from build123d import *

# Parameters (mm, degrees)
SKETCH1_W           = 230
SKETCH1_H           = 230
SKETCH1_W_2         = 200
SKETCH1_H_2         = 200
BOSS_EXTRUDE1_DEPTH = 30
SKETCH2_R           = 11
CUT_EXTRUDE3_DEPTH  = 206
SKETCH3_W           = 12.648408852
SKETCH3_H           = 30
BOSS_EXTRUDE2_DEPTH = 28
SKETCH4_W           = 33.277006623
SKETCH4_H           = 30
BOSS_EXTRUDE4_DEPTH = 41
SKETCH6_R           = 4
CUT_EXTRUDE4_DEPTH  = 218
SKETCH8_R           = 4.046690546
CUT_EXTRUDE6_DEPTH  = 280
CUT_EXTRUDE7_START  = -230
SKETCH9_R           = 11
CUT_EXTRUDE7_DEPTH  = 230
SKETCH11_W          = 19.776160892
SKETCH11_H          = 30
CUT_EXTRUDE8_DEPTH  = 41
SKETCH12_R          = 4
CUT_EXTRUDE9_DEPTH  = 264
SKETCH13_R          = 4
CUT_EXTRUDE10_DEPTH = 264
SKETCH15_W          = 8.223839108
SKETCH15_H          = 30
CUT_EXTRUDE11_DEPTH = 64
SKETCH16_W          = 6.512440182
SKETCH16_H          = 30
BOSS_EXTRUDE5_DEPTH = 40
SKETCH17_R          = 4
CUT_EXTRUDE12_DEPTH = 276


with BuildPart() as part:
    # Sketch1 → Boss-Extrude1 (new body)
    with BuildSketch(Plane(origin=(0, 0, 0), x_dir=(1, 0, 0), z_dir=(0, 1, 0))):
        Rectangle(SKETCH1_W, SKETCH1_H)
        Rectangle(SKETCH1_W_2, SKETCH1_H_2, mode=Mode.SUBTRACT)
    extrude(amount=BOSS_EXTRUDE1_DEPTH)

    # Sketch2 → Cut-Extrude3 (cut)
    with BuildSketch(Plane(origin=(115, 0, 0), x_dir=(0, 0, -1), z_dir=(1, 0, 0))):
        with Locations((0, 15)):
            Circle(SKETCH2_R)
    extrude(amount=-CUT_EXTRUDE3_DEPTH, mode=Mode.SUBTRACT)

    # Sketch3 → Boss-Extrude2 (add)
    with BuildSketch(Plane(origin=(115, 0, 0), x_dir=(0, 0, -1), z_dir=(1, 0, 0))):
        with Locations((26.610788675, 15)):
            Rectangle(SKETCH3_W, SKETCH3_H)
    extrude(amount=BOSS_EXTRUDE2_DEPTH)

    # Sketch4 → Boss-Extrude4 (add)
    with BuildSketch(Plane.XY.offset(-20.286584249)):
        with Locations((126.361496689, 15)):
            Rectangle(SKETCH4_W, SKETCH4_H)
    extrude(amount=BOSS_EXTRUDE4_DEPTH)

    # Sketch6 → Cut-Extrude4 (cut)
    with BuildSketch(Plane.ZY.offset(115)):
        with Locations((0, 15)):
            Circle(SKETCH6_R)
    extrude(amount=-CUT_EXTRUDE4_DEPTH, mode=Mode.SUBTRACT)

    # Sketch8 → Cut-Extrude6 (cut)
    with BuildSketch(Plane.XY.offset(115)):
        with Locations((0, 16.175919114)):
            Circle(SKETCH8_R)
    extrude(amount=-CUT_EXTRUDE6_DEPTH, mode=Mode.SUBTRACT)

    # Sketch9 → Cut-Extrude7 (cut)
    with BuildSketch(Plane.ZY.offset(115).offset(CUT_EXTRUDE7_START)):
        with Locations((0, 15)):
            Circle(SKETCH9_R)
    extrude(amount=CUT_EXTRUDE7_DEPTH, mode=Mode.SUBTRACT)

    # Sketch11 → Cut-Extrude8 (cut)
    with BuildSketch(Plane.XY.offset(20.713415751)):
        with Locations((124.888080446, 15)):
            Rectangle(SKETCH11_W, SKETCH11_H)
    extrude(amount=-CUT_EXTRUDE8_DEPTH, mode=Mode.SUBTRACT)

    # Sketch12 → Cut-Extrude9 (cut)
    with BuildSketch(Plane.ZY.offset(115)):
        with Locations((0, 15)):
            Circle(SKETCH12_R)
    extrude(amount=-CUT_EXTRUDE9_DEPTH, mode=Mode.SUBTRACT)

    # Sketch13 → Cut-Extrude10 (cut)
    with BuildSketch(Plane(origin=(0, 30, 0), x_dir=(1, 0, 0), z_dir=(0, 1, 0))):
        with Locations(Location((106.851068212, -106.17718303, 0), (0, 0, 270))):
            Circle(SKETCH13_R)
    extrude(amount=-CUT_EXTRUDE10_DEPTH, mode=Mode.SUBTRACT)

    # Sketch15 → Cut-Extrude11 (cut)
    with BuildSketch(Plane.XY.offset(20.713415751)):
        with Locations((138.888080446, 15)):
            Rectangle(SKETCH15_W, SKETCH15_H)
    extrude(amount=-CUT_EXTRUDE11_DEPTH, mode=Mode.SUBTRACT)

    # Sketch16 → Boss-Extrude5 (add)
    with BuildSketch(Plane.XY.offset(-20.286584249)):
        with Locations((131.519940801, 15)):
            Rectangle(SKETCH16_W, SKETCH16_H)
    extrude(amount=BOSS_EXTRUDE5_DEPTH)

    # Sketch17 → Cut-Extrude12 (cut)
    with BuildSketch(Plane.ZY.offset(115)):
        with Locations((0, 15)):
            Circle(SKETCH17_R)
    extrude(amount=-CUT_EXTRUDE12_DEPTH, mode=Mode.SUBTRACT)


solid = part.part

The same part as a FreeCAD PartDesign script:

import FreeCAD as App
import Part
import Sketcher
Q = App.Units.Quantity


def add_polygon(sketch, points):
    """Adds a closed chain of lines whose ends are joined by coincident constraints."""
    first, n = sketch.GeometryCount, len(points)
    for a, b in zip(points, points[1:] + points[:1]):
        sketch.addGeometry(Part.LineSegment(App.Vector(*a, 0), App.Vector(*b, 0)), False)
    for i in range(n):
        sketch.addConstraint(Sketcher.Constraint("Coincident", first + i, 2, first + (i + 1) % n, 1))

doc = App.newDocument("Part")
params = doc.addObject("Spreadsheet::Sheet", "Params")
for row, (alias, value) in enumerate([
    ("sketch1_width", "230 mm"),
    ("sketch1_width2", "200 mm"),
    ("pad1_length", "30 mm"),
    ("sketch2_diameter", "22 mm"),
    ("pocket1_length", "206 mm"),
    ("sketch3_width", "30 mm"),
    ("pad2_length", "28 mm"),
    ("sketch4_height", "30 mm"),
    ("pad3_length", "41 mm"),
    ("sketch5_diameter", "8 mm"),
    ("pocket2_length", "218 mm"),
    ("pocket3_length", "280 mm"),
    ("sketch7_diameter", "22 mm"),
    ("pocket4_length", "230 mm"),
    ("sketch8_height", "30 mm"),
    ("pocket5_length", "41 mm"),
    ("sketch9_diameter", "8 mm"),
    ("pocket6_length", "264 mm"),
    ("sketch10_diameter", "8 mm"),
    ("pocket7_length", "264 mm"),
    ("sketch11_height", "30 mm"),
    ("pocket8_length", "64 mm"),
    ("sketch12_height", "30 mm"),
    ("pad4_length", "40 mm"),
    ("sketch13_diameter", "8 mm"),
    ("pocket9_length", "276 mm"),
], start=1):
    params.set(f"A{row}", alias)
    params.set(f"B{row}", "=" + value)
    params.setAlias(f"B{row}", alias)

body = doc.addObject("PartDesign::Body", "Body")

sketch1 = body.newObject("Sketcher::SketchObject", "Sketch")
sketch1.AttachmentSupport = (doc.getObject("XZ_Plane"), [""])
sketch1.MapMode = "FlatFace"
add_polygon(sketch1, [(-115, -115), (-115, 115), (115, 115), (115, -115)])
add_polygon(sketch1, [(100, 100), (-100, 100), (-100, -100), (100, -100)])
sketch1.addConstraint(Sketcher.Constraint("Vertical", 0))
sketch1.addConstraint(Sketcher.Constraint("Horizontal", 1))
sketch1.addConstraint(Sketcher.Constraint("Vertical", 2))
sketch1.addConstraint(Sketcher.Constraint("Horizontal", 3))
sketch1.addConstraint(Sketcher.Constraint("Horizontal", 4))
sketch1.addConstraint(Sketcher.Constraint("Vertical", 5))
sketch1.addConstraint(Sketcher.Constraint("Horizontal", 6))
sketch1.addConstraint(Sketcher.Constraint("Vertical", 7))
sketch1.addConstraint(Sketcher.Constraint("Symmetric", 0, 2, 2, 2, -1, 1))
sketch1.addConstraint(Sketcher.Constraint("Symmetric", 4, 2, 6, 2, -1, 1))
sketch1.addConstraint(Sketcher.Constraint("Equal", 3, 0))
sketch1.addConstraint(Sketcher.Constraint("Equal", 6, 5))
sketch1.addConstraint(Sketcher.Constraint("DistanceX", 1, 1, 1, 2, Q("230 mm")))
sketch1.addConstraint(Sketcher.Constraint("DistanceX", 4, 2, 4, 1, Q("200 mm")))
sketch1.setExpression("Constraints[20]", "Params.sketch1_width")
sketch1.setExpression("Constraints[21]", "Params.sketch1_width2")
pad1 = body.newObject("PartDesign::Pad", "Pad")
pad1.Profile = sketch1
pad1.setExpression("Length", "Params.pad1_length")
pad1.Reversed = True

sketch2 = body.newObject("Sketcher::SketchObject", "Sketch001")
sketch2.AttachmentSupport = (doc.getObject("YZ_Plane"), [""])
sketch2.MapMode = "FlatFace"
sketch2.AttachmentOffset = App.Placement(App.Vector(0, 0, 115), App.Rotation())
sketch2.addGeometry(Part.Circle(App.Vector(15, 0, 0), App.Vector(0, 0, 1), 11), False)
sketch2.addConstraint(Sketcher.Constraint("PointOnObject", 0, 3, -1))
sketch2.addConstraint(Sketcher.Constraint("Diameter", 0, Q("22 mm")))
sketch2.addConstraint(Sketcher.Constraint("DistanceX", -1, 1, 0, 3, Q("15 mm")))
sketch2.setExpression("Constraints[1]", "Params.sketch2_diameter")
pocket1 = body.newObject("PartDesign::Pocket", "Pocket")
pocket1.Profile = sketch2
pocket1.setExpression("Length", "Params.pocket1_length")

sketch3 = body.newObject("Sketcher::SketchObject", "Sketch002")
sketch3.AttachmentSupport = (doc.getObject("YZ_Plane"), [""])
sketch3.MapMode = "FlatFace"
sketch3.AttachmentOffset = App.Placement(App.Vector(0, 0, 115), App.Rotation())
add_polygon(sketch3, [(30, -20), (0, -20), (0, -33), (30, -33)])
sketch3.addConstraint(Sketcher.Constraint("Horizontal", 0))
sketch3.addConstraint(Sketcher.Constraint("Vertical", 1))
sketch3.addConstraint(Sketcher.Constraint("Horizontal", 2))
sketch3.addConstraint(Sketcher.Constraint("Vertical", 3))
sketch3.addConstraint(Sketcher.Constraint("PointOnObject", 0, 2, -2))
sketch3.addConstraint(Sketcher.Constraint("DistanceX", 0, 2, 0, 1, Q("30 mm")))
sketch3.addConstraint(Sketcher.Constraint("DistanceY", 1, 2, 1, 1, Q("12.648409 mm")))
sketch3.addConstraint(Sketcher.Constraint("DistanceY", 0, 2, -1, 1, Q("20.286584 mm")))
sketch3.setExpression("Constraints[9]", "Params.sketch3_width")
pad2 = body.newObject("PartDesign::Pad", "Pad001")
pad2.Profile = sketch3
pad2.setExpression("Length", "Params.pad2_length")

sketch4 = body.newObject("Sketcher::SketchObject", "Sketch003")
sketch4.AttachmentSupport = (doc.getObject("XY_Plane"), [""])
sketch4.MapMode = "FlatFace"
sketch4.AttachmentOffset = App.Placement(App.Vector(0, 0, -20.286584), App.Rotation())
add_polygon(sketch4, [(110, 30), (110, 0), (143, 0), (143, 30)])
sketch4.addConstraint(Sketcher.Constraint("Vertical", 0))
sketch4.addConstraint(Sketcher.Constraint("Horizontal", 1))
sketch4.addConstraint(Sketcher.Constraint("Vertical", 2))
sketch4.addConstraint(Sketcher.Constraint("Horizontal", 3))
sketch4.addConstraint(Sketcher.Constraint("PointOnObject", 0, 2, -1))
sketch4.addConstraint(Sketcher.Constraint("DistanceY", 0, 2, 0, 1, Q("30 mm")))
sketch4.addConstraint(Sketcher.Constraint("DistanceX", -1, 1, 1, 2, Q("143 mm")))
sketch4.addConstraint(Sketcher.Constraint("DistanceX", 1, 1, 1, 2, Q("33.277007 mm")))
sketch4.setExpression("Constraints[9]", "Params.sketch4_height")
pad3 = body.newObject("PartDesign::Pad", "Pad002")
pad3.Profile = sketch4
pad3.setExpression("Length", "Params.pad3_length")

sketch5 = body.newObject("Sketcher::SketchObject", "Sketch004")
sketch5.AttachmentSupport = (doc.getObject("YZ_Plane"), [""])
sketch5.MapMode = "FlatFace"
sketch5.AttachmentOffset = App.Placement(App.Vector(0, 0, -115), App.Rotation())
sketch5.addGeometry(Part.Circle(App.Vector(15, 0, 0), App.Vector(0, 0, 1), 4), False)
sketch5.addConstraint(Sketcher.Constraint("PointOnObject", 0, 3, -1))
sketch5.addConstraint(Sketcher.Constraint("Diameter", 0, Q("8 mm")))
sketch5.addConstraint(Sketcher.Constraint("DistanceX", -1, 1, 0, 3, Q("15 mm")))
sketch5.setExpression("Constraints[1]", "Params.sketch5_diameter")
pocket2 = body.newObject("PartDesign::Pocket", "Pocket001")
pocket2.Profile = sketch5
pocket2.setExpression("Length", "Params.pocket2_length")
pocket2.Reversed = True

sketch6 = body.newObject("Sketcher::SketchObject", "Sketch005")
sketch6.AttachmentSupport = (doc.getObject("XY_Plane"), [""])
sketch6.MapMode = "FlatFace"
sketch6.AttachmentOffset = App.Placement(App.Vector(0, 0, 115), App.Rotation())
sketch6.addGeometry(Part.Circle(App.Vector(0, 16.2, 0), App.Vector(0, 0, 1), 4), False)
sketch6.addConstraint(Sketcher.Constraint("PointOnObject", 0, 3, -2))
sketch6.addConstraint(Sketcher.Constraint("Diameter", 0, Q("8.093381 mm")))
sketch6.addConstraint(Sketcher.Constraint("DistanceY", -1, 1, 0, 3, Q("16.175919 mm")))
pocket3 = body.newObject("PartDesign::Pocket", "Pocket002")
pocket3.Profile = sketch6
pocket3.setExpression("Length", "Params.pocket3_length")

sketch7 = body.newObject("Sketcher::SketchObject", "Sketch006")
sketch7.AttachmentSupport = (doc.getObject("YZ_Plane"), [""])
sketch7.MapMode = "FlatFace"
sketch7.AttachmentOffset = App.Placement(App.Vector(0, 0, 115), App.Rotation())
sketch7.addGeometry(Part.Circle(App.Vector(15, 0, 0), App.Vector(0, 0, 1), 11), False)
sketch7.addConstraint(Sketcher.Constraint("PointOnObject", 0, 3, -1))
sketch7.addConstraint(Sketcher.Constraint("Diameter", 0, Q("22 mm")))
sketch7.addConstraint(Sketcher.Constraint("DistanceX", -1, 1, 0, 3, Q("15 mm")))
sketch7.setExpression("Constraints[1]", "Params.sketch7_diameter")
pocket4 = body.newObject("PartDesign::Pocket", "Pocket003")
pocket4.Profile = sketch7
pocket4.setExpression("Length", "Params.pocket4_length")

sketch8 = body.newObject("Sketcher::SketchObject", "Sketch007")
sketch8.AttachmentSupport = (doc.getObject("XY_Plane"), [""])
sketch8.MapMode = "FlatFace"
sketch8.AttachmentOffset = App.Placement(App.Vector(0, 0, 20.713416), App.Rotation())
add_polygon(sketch8, [(115, 30), (115, 0), (135, 0), (135, 30)])
sketch8.addConstraint(Sketcher.Constraint("Vertical", 0))
sketch8.addConstraint(Sketcher.Constraint("Horizontal", 1))
sketch8.addConstraint(Sketcher.Constraint("Vertical", 2))
sketch8.addConstraint(Sketcher.Constraint("Horizontal", 3))
sketch8.addConstraint(Sketcher.Constraint("PointOnObject", 0, 2, -1))
sketch8.addConstraint(Sketcher.Constraint("DistanceY", 0, 2, 0, 1, Q("30 mm")))
sketch8.addConstraint(Sketcher.Constraint("DistanceX", -1, 1, 0, 2, Q("115 mm")))
sketch8.addConstraint(Sketcher.Constraint("DistanceX", 1, 1, 1, 2, Q("19.776161 mm")))
sketch8.setExpression("Constraints[9]", "Params.sketch8_height")
pocket5 = body.newObject("PartDesign::Pocket", "Pocket004")
pocket5.Profile = sketch8
pocket5.setExpression("Length", "Params.pocket5_length")

sketch9 = body.newObject("Sketcher::SketchObject", "Sketch008")
sketch9.AttachmentSupport = (doc.getObject("YZ_Plane"), [""])
sketch9.MapMode = "FlatFace"
sketch9.AttachmentOffset = App.Placement(App.Vector(0, 0, -115), App.Rotation())
sketch9.addGeometry(Part.Circle(App.Vector(15, 0, 0), App.Vector(0, 0, 1), 4), False)
sketch9.addConstraint(Sketcher.Constraint("PointOnObject", 0, 3, -1))
sketch9.addConstraint(Sketcher.Constraint("Diameter", 0, Q("8 mm")))
sketch9.addConstraint(Sketcher.Constraint("DistanceX", -1, 1, 0, 3, Q("15 mm")))
sketch9.setExpression("Constraints[1]", "Params.sketch9_diameter")
pocket6 = body.newObject("PartDesign::Pocket", "Pocket005")
pocket6.Profile = sketch9
pocket6.setExpression("Length", "Params.pocket6_length")
pocket6.Reversed = True

sketch10 = body.newObject("Sketcher::SketchObject", "Sketch009")
sketch10.AttachmentSupport = (doc.getObject("XZ_Plane"), [""])
sketch10.MapMode = "FlatFace"
sketch10.AttachmentOffset = App.Placement(App.Vector(0, 0, -30), App.Rotation())
sketch10.addGeometry(Part.Circle(App.Vector(106.9, 106.2, 0), App.Vector(0, 0, 1), 4), False)
sketch10.addConstraint(Sketcher.Constraint("Diameter", 0, Q("8 mm")))
sketch10.addConstraint(Sketcher.Constraint("DistanceX", -1, 1, 0, 3, Q("106.851068 mm")))
sketch10.addConstraint(Sketcher.Constraint("DistanceY", -1, 1, 0, 3, Q("106.177183 mm")))
sketch10.setExpression("Constraints[0]", "Params.sketch10_diameter")
pocket7 = body.newObject("PartDesign::Pocket", "Pocket006")
pocket7.Profile = sketch10
pocket7.setExpression("Length", "Params.pocket7_length")
pocket7.Reversed = True

sketch11 = body.newObject("Sketcher::SketchObject", "Sketch010")
sketch11.AttachmentSupport = (doc.getObject("XY_Plane"), [""])
sketch11.MapMode = "FlatFace"
sketch11.AttachmentOffset = App.Placement(App.Vector(0, 0, 20.713416), App.Rotation())
add_polygon(sketch11, [(135, 30), (135, 0), (143, 0), (143, 30)])
sketch11.addConstraint(Sketcher.Constraint("Vertical", 0))
sketch11.addConstraint(Sketcher.Constraint("Horizontal", 1))
sketch11.addConstraint(Sketcher.Constraint("Vertical", 2))
sketch11.addConstraint(Sketcher.Constraint("Horizontal", 3))
sketch11.addConstraint(Sketcher.Constraint("PointOnObject", 0, 2, -1))
sketch11.addConstraint(Sketcher.Constraint("DistanceY", 0, 2, 0, 1, Q("30 mm")))
sketch11.addConstraint(Sketcher.Constraint("DistanceX", -1, 1, 1, 2, Q("143 mm")))
sketch11.addConstraint(Sketcher.Constraint("DistanceX", 1, 1, 1, 2, Q("8.223839 mm")))
sketch11.setExpression("Constraints[9]", "Params.sketch11_height")
pocket8 = body.newObject("PartDesign::Pocket", "Pocket007")
pocket8.Profile = sketch11
pocket8.setExpression("Length", "Params.pocket8_length")

sketch12 = body.newObject("Sketcher::SketchObject", "Sketch011")
sketch12.AttachmentSupport = (doc.getObject("XY_Plane"), [""])
sketch12.MapMode = "FlatFace"
sketch12.AttachmentOffset = App.Placement(App.Vector(0, 0, -20.286584), App.Rotation())
add_polygon(sketch12, [(128, 30), (128, 0), (135, 0), (135, 30)])
sketch12.addConstraint(Sketcher.Constraint("Vertical", 0))
sketch12.addConstraint(Sketcher.Constraint("Horizontal", 1))
sketch12.addConstraint(Sketcher.Constraint("Vertical", 2))
sketch12.addConstraint(Sketcher.Constraint("Horizontal", 3))
sketch12.addConstraint(Sketcher.Constraint("PointOnObject", 0, 2, -1))
sketch12.addConstraint(Sketcher.Constraint("DistanceY", 0, 2, 0, 1, Q("30 mm")))
sketch12.addConstraint(Sketcher.Constraint("DistanceX", 1, 1, 1, 2, Q("6.51244 mm")))
sketch12.addConstraint(Sketcher.Constraint("DistanceX", -1, 1, 0, 2, Q("128.263721 mm")))
sketch12.setExpression("Constraints[9]", "Params.sketch12_height")
pad4 = body.newObject("PartDesign::Pad", "Pad003")
pad4.Profile = sketch12
pad4.setExpression("Length", "Params.pad4_length")

sketch13 = body.newObject("Sketcher::SketchObject", "Sketch012")
sketch13.AttachmentSupport = (doc.getObject("YZ_Plane"), [""])
sketch13.MapMode = "FlatFace"
sketch13.AttachmentOffset = App.Placement(App.Vector(0, 0, -115), App.Rotation())
sketch13.addGeometry(Part.Circle(App.Vector(15, 0, 0), App.Vector(0, 0, 1), 4), False)
sketch13.addConstraint(Sketcher.Constraint("PointOnObject", 0, 3, -1))
sketch13.addConstraint(Sketcher.Constraint("Diameter", 0, Q("8 mm")))
sketch13.addConstraint(Sketcher.Constraint("DistanceX", -1, 1, 0, 3, Q("15 mm")))
sketch13.setExpression("Constraints[1]", "Params.sketch13_diameter")
pocket9 = body.newObject("PartDesign::Pocket", "Pocket008")
pocket9.Profile = sketch13
pocket9.setExpression("Length", "Params.pocket9_length")
pocket9.Reversed = True

doc.recompute()
